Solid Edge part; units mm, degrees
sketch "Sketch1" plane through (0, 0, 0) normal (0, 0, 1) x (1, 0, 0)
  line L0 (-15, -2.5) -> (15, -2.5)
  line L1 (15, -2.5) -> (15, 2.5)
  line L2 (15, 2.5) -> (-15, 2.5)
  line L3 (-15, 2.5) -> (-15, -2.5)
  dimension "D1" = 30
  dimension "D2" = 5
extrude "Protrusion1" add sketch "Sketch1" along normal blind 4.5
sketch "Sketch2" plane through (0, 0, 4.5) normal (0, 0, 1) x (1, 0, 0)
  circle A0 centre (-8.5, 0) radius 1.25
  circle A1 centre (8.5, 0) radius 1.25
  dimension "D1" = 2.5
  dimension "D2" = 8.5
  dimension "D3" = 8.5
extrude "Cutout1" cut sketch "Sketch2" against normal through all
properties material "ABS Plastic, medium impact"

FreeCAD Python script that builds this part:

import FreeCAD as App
import Part
import Sketcher


def add_polygon(sketch, points):
    """Adds a closed chain of lines whose ends are joined by coincident constraints."""
    first, n = sketch.GeometryCount, len(points)
    for a, b in zip(points, points[1:] + points[:1]):
        sketch.addGeometry(Part.LineSegment(App.Vector(*a, 0), App.Vector(*b, 0)), False)
    for i in range(n):
        sketch.addConstraint(Sketcher.Constraint("Coincident", first + i, 2, first + (i + 1) % n, 1))

doc = App.newDocument("Part")
params = doc.addObject("Spreadsheet::Sheet", "Params")
for row, (alias, value) in enumerate([
    ("sketch1_height", "5 mm"),
    ("pad1_length", "4.5 mm"),
    ("sketch2_diameter", "2.5 mm"),
], start=1):
    params.set(f"A{row}", alias)
    params.set(f"B{row}", "=" + value)
    params.setAlias(f"B{row}", alias)

body = doc.addObject("PartDesign::Body", "Body")

# Sketch on XY plane
sketch1 = body.newObject("Sketcher::SketchObject", "Sketch")
sketch1.AttachmentSupport = (doc.getObject("XY_Plane"), [""])
sketch1.MapMode = "FlatFace"
add_polygon(sketch1, [(-15, 2.5), (-15, -2.5), (15, -2.5), (15, 2.5)])  # lines 0-3
sketch1.addConstraint([
    Sketcher.Constraint("Vertical", 0),
    Sketcher.Constraint("Horizontal", 1),
    Sketcher.Constraint("Vertical", 2),
    Sketcher.Constraint("Horizontal", 3),
    Sketcher.Constraint("Symmetric", 0, 2, 2, 2, -1, 1),
    Sketcher.Constraint("DistanceX", 0, 2, -1, 1, 15.0),
    Sketcher.Constraint("DistanceY", 0, 2, 0, 1, 5.0),
])
sketch1.setExpression("Constraints[10]", "Params.sketch1_height")
pad1 = body.newObject("PartDesign::Pad", "Pad")
pad1.Profile = sketch1
pad1.setExpression("Length", "Params.pad1_length")

# Sketch on XY plane
sketch2 = body.newObject("Sketcher::SketchObject", "Sketch001")
sketch2.AttachmentSupport = (doc.getObject("XY_Plane"), [""])
sketch2.MapMode = "FlatFace"
sketch2.AttachmentOffset = App.Placement(App.Vector(0, 0, 4.5), App.Rotation())
sketch2.addGeometry([
    Part.Circle(App.Vector(-8.5, 0, 0), App.Vector(0, 0, 1), 1.25),
    Part.Circle(App.Vector(8.5, 0, 0), App.Vector(0, 0, 1), 1.25),
], False)
sketch2.addConstraint([
    Sketcher.Constraint("Equal", 0, 1),
    Sketcher.Constraint("Symmetric", 0, 3, 1, 3, -1, 1),
    Sketcher.Constraint("PointOnObject", 0, 3, -1),
    Sketcher.Constraint("Diameter", 0, 2.5),
    Sketcher.Constraint("DistanceX", 0, 3, 1, 3, 17.0),
])
sketch2.setExpression("Constraints[3]", "Params.sketch2_diameter")
pocket1 = body.newObject("PartDesign::Pocket", "Pocket")
pocket1.Profile = sketch2
pocket1.Type = "ThroughAll"

doc.recompute()
